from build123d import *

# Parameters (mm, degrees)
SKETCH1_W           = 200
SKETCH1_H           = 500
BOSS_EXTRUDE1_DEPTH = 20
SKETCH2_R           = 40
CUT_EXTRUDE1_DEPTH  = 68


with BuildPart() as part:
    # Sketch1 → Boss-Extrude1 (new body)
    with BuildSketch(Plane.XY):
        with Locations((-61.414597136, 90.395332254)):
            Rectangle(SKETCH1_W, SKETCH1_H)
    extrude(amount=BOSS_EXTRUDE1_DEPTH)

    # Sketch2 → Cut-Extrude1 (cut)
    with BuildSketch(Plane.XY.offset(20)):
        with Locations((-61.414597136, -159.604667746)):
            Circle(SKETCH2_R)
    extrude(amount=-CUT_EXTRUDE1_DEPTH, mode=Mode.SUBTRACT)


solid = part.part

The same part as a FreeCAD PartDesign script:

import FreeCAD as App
import Part
import Sketcher


def add_polygon(sketch, points):
    """Adds a closed chain of lines whose ends are joined by coincident constraints."""
    first, n = sketch.GeometryCount, len(points)
    for a, b in zip(points, points[1:] + points[:1]):
        sketch.addGeometry(Part.LineSegment(App.Vector(*a, 0), App.Vector(*b, 0)), False)
    for i in range(n):
        sketch.addConstraint(Sketcher.Constraint("Coincident", first + i, 2, first + (i + 1) % n, 1))

doc = App.newDocument("Part")
body = doc.addObject("PartDesign::Body", "Body")

# Sketch on XY plane
sketch1 = body.newObject("Sketcher::SketchObject", "Sketch")
sketch1.AttachmentSupport = (doc.getObject("XY_Plane"), [""])
sketch1.MapMode = "FlatFace"
add_polygon(sketch1, [(-161, 340), (-161, -160), (39, -160), (39, 340)])  # lines 0-3
sketch1.addConstraint([
    Sketcher.Constraint("Vertical", 0),
    Sketcher.Constraint("Horizontal", 1),
    Sketcher.Constraint("Vertical", 2),
    Sketcher.Constraint("Horizontal", 3),
    Sketcher.Constraint("DistanceX", 1, 1, 1, 2, 200.0),
    Sketcher.Constraint("DistanceY", 0, 2, 0, 1, 500.0),
    Sketcher.Constraint("DistanceX", 0, 2, -1, 1, 161.414597),
    Sketcher.Constraint("DistanceY", 0, 2, -1, 1, 159.604668),
])
pad1 = body.newObject("PartDesign::Pad", "Pad")
pad1.Profile = sketch1
pad1.Length = 20

# Sketch on XY plane
sketch2 = body.newObject("Sketcher::SketchObject", "Sketch001")
sketch2.AttachmentSupport = (doc.getObject("XY_Plane"), [""])
sketch2.MapMode = "FlatFace"
sketch2.AttachmentOffset = App.Placement(App.Vector(0, 0, 20), App.Rotation())
sketch2.addGeometry(Part.Circle(App.Vector(-61, -160, 0), App.Vector(0, 0, 1), 40), False)
sketch2.addConstraint([
    Sketcher.Constraint("Diameter", 0, 80.0),
    Sketcher.Constraint("DistanceX", 0, 3, -1, 1, 61.414597),
    Sketcher.Constraint("DistanceY", 0, 3, -1, 1, 159.604668),
])
pocket1 = body.newObject("PartDesign::Pocket", "Pocket")
pocket1.Profile = sketch2
pocket1.Length = 68

doc.recompute()
